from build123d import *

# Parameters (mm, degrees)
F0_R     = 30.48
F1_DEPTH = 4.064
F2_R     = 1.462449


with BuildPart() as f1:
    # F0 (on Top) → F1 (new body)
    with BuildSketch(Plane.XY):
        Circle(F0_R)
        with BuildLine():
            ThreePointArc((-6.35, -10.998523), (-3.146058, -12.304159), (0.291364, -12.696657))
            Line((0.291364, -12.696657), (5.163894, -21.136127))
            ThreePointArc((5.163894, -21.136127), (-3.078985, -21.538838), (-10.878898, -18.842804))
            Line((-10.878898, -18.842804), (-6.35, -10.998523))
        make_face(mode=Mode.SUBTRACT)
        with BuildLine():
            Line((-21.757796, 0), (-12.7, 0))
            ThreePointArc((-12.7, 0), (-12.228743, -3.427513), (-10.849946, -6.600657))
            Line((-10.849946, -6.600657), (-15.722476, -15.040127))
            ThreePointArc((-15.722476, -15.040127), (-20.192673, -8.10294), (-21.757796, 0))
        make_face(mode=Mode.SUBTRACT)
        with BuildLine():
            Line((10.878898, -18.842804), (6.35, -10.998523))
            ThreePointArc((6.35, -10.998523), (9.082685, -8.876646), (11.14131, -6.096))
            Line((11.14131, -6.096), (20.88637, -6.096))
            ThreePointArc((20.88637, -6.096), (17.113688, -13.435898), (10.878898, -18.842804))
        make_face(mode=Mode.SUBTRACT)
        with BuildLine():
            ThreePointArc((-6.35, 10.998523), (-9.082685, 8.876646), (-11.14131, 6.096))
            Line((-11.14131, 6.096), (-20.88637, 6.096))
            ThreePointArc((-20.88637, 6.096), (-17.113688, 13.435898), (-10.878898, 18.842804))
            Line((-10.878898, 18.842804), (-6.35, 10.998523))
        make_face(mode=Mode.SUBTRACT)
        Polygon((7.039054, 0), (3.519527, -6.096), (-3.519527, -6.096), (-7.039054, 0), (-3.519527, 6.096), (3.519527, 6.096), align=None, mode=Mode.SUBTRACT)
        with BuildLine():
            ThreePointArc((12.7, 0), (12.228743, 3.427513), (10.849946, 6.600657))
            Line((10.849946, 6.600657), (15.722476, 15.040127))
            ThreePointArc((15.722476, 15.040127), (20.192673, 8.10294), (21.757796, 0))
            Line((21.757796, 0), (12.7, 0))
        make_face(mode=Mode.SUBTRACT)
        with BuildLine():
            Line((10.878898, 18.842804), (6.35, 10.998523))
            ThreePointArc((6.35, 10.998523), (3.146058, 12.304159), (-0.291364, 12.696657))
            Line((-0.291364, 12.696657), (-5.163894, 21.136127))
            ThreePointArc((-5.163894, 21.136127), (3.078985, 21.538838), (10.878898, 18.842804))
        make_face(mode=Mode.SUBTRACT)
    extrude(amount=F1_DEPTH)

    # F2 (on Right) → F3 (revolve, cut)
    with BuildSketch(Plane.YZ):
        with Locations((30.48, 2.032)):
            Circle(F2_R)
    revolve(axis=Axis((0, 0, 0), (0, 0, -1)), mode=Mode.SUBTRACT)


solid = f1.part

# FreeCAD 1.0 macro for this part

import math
import FreeCAD as App
import Part
import Sketcher
from FreeCAD import Vector
Q = App.Units.Quantity

doc = App.newDocument("Part")
body = doc.addObject("PartDesign::Body", "Body")

sketch1 = body.newObject("Sketcher::SketchObject", "Sketch")
sketch1.AttachmentSupport = (doc.getObject("XY_Plane"), [""])
sketch1.MapMode = "FlatFace"
sketch1.addGeometry(Part.Circle(Vector(0, 0, 0), Vector(0, 0, 1), 30.48), False)
sketch1.addGeometry(Part.LineSegment(Vector(-10.878898, -18.842804, 0), Vector(-6.35, -10.998523, 0)), False)
sketch1.addGeometry(Part.ArcOfCircle(Part.Circle(Vector(-0.000004, -0.00001, 0), Vector(0, 0, 1), 12.69999), math.radians(-120.000006), math.radians(-88.685385)), False)
sketch1.addGeometry(Part.LineSegment(Vector(0.291364, -12.696657, 0), Vector(5.163894, -21.136127, 0)), False)
sketch1.addGeometry(Part.ArcOfCircle(Part.Circle(Vector(-0.000001, -0.000005, 0), Vector(0, 0, 1), 21.757791), math.radians(-120.000004), math.radians(-76.27067)), False)
sketch1.addGeometry(Part.ArcOfCircle(Part.Circle(Vector(0, 0, 0), Vector(0, 0, 1), 21.757796), math.radians(-179.999999), math.radians(-136.270675)), False)
sketch1.addGeometry(Part.LineSegment(Vector(-21.757796, 0, 0), Vector(-12.7, 0, 0)), False)
sketch1.addGeometry(Part.ArcOfCircle(Part.Circle(Vector(0, 0, 0), Vector(0, 0, 1), 12.7), math.radians(179.999999), math.radians(211.314596)), False)
sketch1.addGeometry(Part.LineSegment(Vector(-10.849946, -6.600657, 0), Vector(-15.722476, -15.040127, 0)), False)
sketch1.addGeometry(Part.ArcOfCircle(Part.Circle(Vector(-0.000001, 0, 0), Vector(0, 0, 1), 21.757797), math.radians(-59.999997), math.radians(-16.270676)), False)
sketch1.addGeometry(Part.LineSegment(Vector(10.878898, -18.842804, 0), Vector(6.35, -10.998523, 0)), False)
sketch1.addGeometry(Part.ArcOfCircle(Part.Circle(Vector(0.000003, -0.000004, 0), Vector(0, 0, 1), 12.699995), math.radians(-60.000006), math.radians(-28.685394)), False)
sketch1.addGeometry(Part.LineSegment(Vector(11.14131, -6.096, 0), Vector(20.88637, -6.096, 0)), False)
sketch1.addGeometry(Part.LineSegment(Vector(3.519527, 6.096, 0), Vector(7.039054, 0, 0)), False)
sketch1.addGeometry(Part.LineSegment(Vector(7.039054, 0, 0), Vector(3.519527, -6.096, 0)), False)
sketch1.addGeometry(Part.LineSegment(Vector(3.519527, -6.096, 0), Vector(-3.519527, -6.096, 0)), False)
sketch1.addGeometry(Part.LineSegment(Vector(-3.519527, -6.096, 0), Vector(-7.039054, 0, 0)), False)
sketch1.addGeometry(Part.LineSegment(Vector(-7.039054, 0, 0), Vector(-3.519527, 6.096, 0)), False)
sketch1.addGeometry(Part.LineSegment(Vector(-3.519527, 6.096, 0), Vector(3.519527, 6.096, 0)), False)
sketch1.addGeometry(Part.LineSegment(Vector(-10.878898, 18.842804, 0), Vector(-6.35, 10.998523, 0)), False)
sketch1.addGeometry(Part.ArcOfCircle(Part.Circle(Vector(-0.000003, 0.000004, 0), Vector(0, 0, 1), 12.699995), math.radians(119.999994), math.radians(151.314606)), False)
sketch1.addGeometry(Part.LineSegment(Vector(-11.14131, 6.096, 0), Vector(-20.88637, 6.096, 0)), False)
sketch1.addGeometry(Part.ArcOfCircle(Part.Circle(Vector(0.000001, 0, 0), Vector(0, 0, 1), 21.757797), math.radians(120.000003), math.radians(163.729324)), False)
sketch1.addGeometry(Part.LineSegment(Vector(21.757796, 0, 0), Vector(12.7, 0, 0)), False)
sketch1.addGeometry(Part.ArcOfCircle(Part.Circle(Vector(0, 0, 0), Vector(0, 0, 1), 12.7), math.radians(-0.000001), math.radians(31.314596)), False)
sketch1.addGeometry(Part.LineSegment(Vector(10.849946, 6.600657, 0), Vector(15.722476, 15.040127, 0)), False)
sketch1.addGeometry(Part.ArcOfCircle(Part.Circle(Vector(0, 0, 0), Vector(0, 0, 1), 21.757796), math.radians(0.000001), math.radians(43.729325)), False)
sketch1.addGeometry(Part.ArcOfCircle(Part.Circle(Vector(0.000001, 0.000005, 0), Vector(0, 0, 1), 21.757791), math.radians(59.999996), math.radians(103.72933)), False)
sketch1.addGeometry(Part.LineSegment(Vector(10.878898, 18.842804, 0), Vector(6.35, 10.998523, 0)), False)
sketch1.addGeometry(Part.ArcOfCircle(Part.Circle(Vector(0.000004, 0.00001, 0), Vector(0, 0, 1), 12.69999), math.radians(59.999994), math.radians(91.314615)), False)
sketch1.addGeometry(Part.LineSegment(Vector(-0.291364, 12.696657, 0), Vector(-5.163894, 21.136127, 0)), False)
sketch1.addConstraint(Sketcher.Constraint("Coincident", 1, 2, 2, 1))
sketch1.addConstraint(Sketcher.Constraint("Coincident", 2, 2, 3, 1))
sketch1.addConstraint(Sketcher.Constraint("Coincident", 3, 2, 4, 2))
sketch1.addConstraint(Sketcher.Constraint("Coincident", 4, 1, 1, 1))
sketch1.addConstraint(Sketcher.Constraint("Coincident", 5, 1, 6, 1))
sketch1.addConstraint(Sketcher.Constraint("Coincident", 6, 2, 7, 1))
sketch1.addConstraint(Sketcher.Constraint("Coincident", 7, 2, 8, 1))
sketch1.addConstraint(Sketcher.Constraint("Coincident", 8, 2, 5, 2))
sketch1.addConstraint(Sketcher.Constraint("Coincident", 9, 1, 10, 1))
sketch1.addConstraint(Sketcher.Constraint("Coincident", 10, 2, 11, 1))
sketch1.addConstraint(Sketcher.Constraint("Coincident", 11, 2, 12, 1))
sketch1.addConstraint(Sketcher.Constraint("Coincident", 12, 2, 9, 2))
sketch1.addConstraint(Sketcher.Constraint("Coincident", 13, 2, 14, 1))
sketch1.addConstraint(Sketcher.Constraint("Coincident", 14, 2, 15, 1))
sketch1.addConstraint(Sketcher.Constraint("Coincident", 15, 2, 16, 1))
sketch1.addConstraint(Sketcher.Constraint("Coincident", 16, 2, 17, 1))
sketch1.addConstraint(Sketcher.Constraint("Coincident", 17, 2, 18, 1))
sketch1.addConstraint(Sketcher.Constraint("Coincident", 18, 2, 13, 1))
sketch1.addConstraint(Sketcher.Constraint("Coincident", 19, 2, 20, 1))
sketch1.addConstraint(Sketcher.Constraint("Coincident", 20, 2, 21, 1))
sketch1.addConstraint(Sketcher.Constraint("Coincident", 21, 2, 22, 2))
sketch1.addConstraint(Sketcher.Constraint("Coincident", 22, 1, 19, 1))
sketch1.addConstraint(Sketcher.Constraint("Coincident", 23, 2, 24, 1))
sketch1.addConstraint(Sketcher.Constraint("Coincident", 24, 2, 25, 1))
sketch1.addConstraint(Sketcher.Constraint("Coincident", 25, 2, 26, 2))
sketch1.addConstraint(Sketcher.Constraint("Coincident", 26, 1, 23, 1))
sketch1.addConstraint(Sketcher.Constraint("Coincident", 27, 1, 28, 1))
sketch1.addConstraint(Sketcher.Constraint("Coincident", 28, 2, 29, 1))
sketch1.addConstraint(Sketcher.Constraint("Coincident", 29, 2, 30, 1))
sketch1.addConstraint(Sketcher.Constraint("Coincident", 30, 2, 27, 2))
sketch1.addConstraint(Sketcher.Constraint("Horizontal", 6))
sketch1.addConstraint(Sketcher.Constraint("Horizontal", 12))
sketch1.addConstraint(Sketcher.Constraint("Horizontal", 15))
sketch1.addConstraint(Sketcher.Constraint("Horizontal", 18))
sketch1.addConstraint(Sketcher.Constraint("Horizontal", 21))
sketch1.addConstraint(Sketcher.Constraint("Horizontal", 23))
sketch1.addConstraint(Sketcher.Constraint("Coincident", 0, 3, -1, 1))
sketch1.addConstraint(Sketcher.Constraint("Coincident", 4, 3, -1, 1))
sketch1.addConstraint(Sketcher.Constraint("Coincident", 5, 3, -1, 1))
sketch1.addConstraint(Sketcher.Constraint("Coincident", 7, 3, -1, 1))
sketch1.addConstraint(Sketcher.Constraint("Coincident", 9, 3, -1, 1))
sketch1.addConstraint(Sketcher.Constraint("Coincident", 11, 3, -1, 1))
sketch1.addConstraint(Sketcher.Constraint("Coincident", 20, 3, -1, 1))
sketch1.addConstraint(Sketcher.Constraint("Coincident", 22, 3, -1, 1))
sketch1.addConstraint(Sketcher.Constraint("Coincident", 24, 3, -1, 1))
sketch1.addConstraint(Sketcher.Constraint("Coincident", 26, 3, -1, 1))
sketch1.addConstraint(Sketcher.Constraint("Coincident", 27, 3, -1, 1))
sketch1.addConstraint(Sketcher.Constraint("Coincident", 29, 3, 5, 3))
sketch1.addConstraint(Sketcher.Constraint("PointOnObject", 5, 1, -1))
sketch1.addConstraint(Sketcher.Constraint("PointOnObject", 13, 2, -1))
sketch1.addConstraint(Sketcher.Constraint("PointOnObject", 16, 2, -1))
sketch1.addConstraint(Sketcher.Constraint("PointOnObject", 23, 2, -1))
sketch1.addConstraint(Sketcher.Constraint("Diameter", 0, Q("2.4 in")))
sketch1.addConstraint(Sketcher.Constraint("Radius", 7, Q("0.5 in")))
sketch1.addConstraint(Sketcher.Constraint("Radius", 11, Q("0.4999998 in")))
sketch1.addConstraint(Sketcher.Constraint("Radius", 20, Q("0.4999998 in")))
sketch1.addConstraint(Sketcher.Constraint("Radius", 24, Q("0.5 in")))
sketch1.addConstraint(Sketcher.Constraint("DistanceX", 6, 2, 2, 3, Q("0.4999999 in")))
sketch1.addConstraint(Sketcher.Constraint("DistanceX", 1, 2, -1, 1, Q("0.25 in")))
sketch1.addConstraint(Sketcher.Constraint("DistanceX", -1, 1, 10, 2, Q("0.25 in")))
sketch1.addConstraint(Sketcher.Constraint("DistanceY", 11, 2, -1, 1, Q("0.24 in")))
sketch1.addConstraint(Sketcher.Constraint("DistanceY", 14, 2, -1, 1, Q("0.24 in")))
sketch1.addConstraint(Sketcher.Constraint("DistanceY", -1, 1, 17, 2, Q("0.24 in")))
sketch1.addConstraint(Sketcher.Constraint("DistanceX", 19, 2, -1, 1, Q("0.25 in")))
sketch1.addConstraint(Sketcher.Constraint("DistanceY", -1, 1, 20, 2, Q("0.24 in")))
sketch1.addConstraint(Sketcher.Constraint("DistanceX", -1, 1, 28, 2, Q("0.25 in")))
sketch1.addConstraint(Sketcher.Constraint("Radius", 2, Q("12.69999 mm")))
sketch1.addConstraint(Sketcher.Constraint("Radius", 4, Q("21.757791 mm")))
sketch1.addConstraint(Sketcher.Constraint("Radius", 27, Q("21.757791 mm")))
sketch1.addConstraint(Sketcher.Constraint("Radius", 29, Q("12.69999 mm")))
sketch1.addConstraint(Sketcher.Constraint("DistanceX", 3, 2, 9, 1, Q("0.2250002 in")))
sketch1.addConstraint(Sketcher.Constraint("DistanceX", 22, 1, 30, 2, Q("0.2250002 in")))
sketch1.addConstraint(Sketcher.Constraint("Radius", 5, Q("21.757796 mm")))
sketch1.addConstraint(Sketcher.Constraint("Radius", 9, Q("21.757797 mm")))
sketch1.addConstraint(Sketcher.Constraint("Radius", 22, Q("21.757797 mm")))
sketch1.addConstraint(Sketcher.Constraint("Radius", 26, Q("21.757796 mm")))
sketch1.addConstraint(Sketcher.Constraint("DistanceX", -1, 1, 9, 1, Q("10.878898 mm")))
sketch1.addConstraint(Sketcher.Constraint("DistanceX", 22, 1, -1, 1, Q("10.878898 mm")))
sketch1.addConstraint(Sketcher.Constraint("DistanceY", 4, 1, 4, 3, Q("18.842799 mm")))
sketch1.addConstraint(Sketcher.Constraint("Distance", 3, Q("9.74506 mm")))
sketch1.addConstraint(Sketcher.Constraint("Distance", 8, Q("9.74506 mm")))
sketch1.addConstraint(Sketcher.Constraint("Distance", 25, Q("9.74506 mm")))
sketch1.addConstraint(Sketcher.Constraint("Distance", 30, Q("9.74506 mm")))
sketch1.addConstraint(Sketcher.Constraint("DistanceX", 15, 2, 15, 1, Q("7.039054 mm")))
sketch1.addConstraint(Sketcher.Constraint("DistanceX", 18, 1, 18, 2, Q("7.039054 mm")))
sketch1.addConstraint(Sketcher.Constraint("DistanceY", 1, 2, 4, 3, Q("10.998518 mm")))
sketch1.addConstraint(Sketcher.Constraint("DistanceX", 4, 1, 7, 2, Q("0.028952 mm")))
sketch1.addConstraint(Sketcher.Constraint("DistanceX", 29, 3, 13, 2, Q("7.03905 mm")))
sketch1.addConstraint(Sketcher.Constraint("DistanceX", 2, 3, 14, 2, Q("3.519531 mm")))
sketch1.addConstraint(Sketcher.Constraint("DistanceX", 16, 2, 2, 3, Q("7.03905 mm")))
sketch1.addConstraint(Sketcher.Constraint("DistanceX", 17, 2, 29, 3, Q("3.519531 mm")))
sketch1.addConstraint(Sketcher.Constraint("DistanceX", 18, 2, 24, 2, Q("7.330419 mm")))
sketch1.addConstraint(Sketcher.Constraint("DistanceX", 27, 1, 25, 2, Q("4.843578 mm")))
pad1 = body.newObject("PartDesign::Pad", "Pad")
pad1.Profile = sketch1
pad1.Length = Q("0.16 in")

sketch2 = body.newObject("Sketcher::SketchObject", "Sketch001")
sketch2.AttachmentSupport = (doc.getObject("YZ_Plane"), [""])
sketch2.MapMode = "FlatFace"
sketch2.addGeometry(Part.Circle(Vector(30.5, 2, 0), Vector(0, 0, 1), 1.5), False)
sketch2.addConstraint(Sketcher.Constraint("DistanceX", -1, 1, 0, 3, Q("1.2 in")))
sketch2.addConstraint(Sketcher.Constraint("Diameter", 0, Q("2.924898 mm")))
sketch2.addConstraint(Sketcher.Constraint("DistanceY", -1, 1, 0, 3, Q("0.08 in")))
groove = body.newObject("PartDesign::Groove", "Groove")
groove.Profile = sketch2
groove.ReferenceAxis = (sketch2, ["V_Axis"])
groove.Angle = 360

doc.recompute()
